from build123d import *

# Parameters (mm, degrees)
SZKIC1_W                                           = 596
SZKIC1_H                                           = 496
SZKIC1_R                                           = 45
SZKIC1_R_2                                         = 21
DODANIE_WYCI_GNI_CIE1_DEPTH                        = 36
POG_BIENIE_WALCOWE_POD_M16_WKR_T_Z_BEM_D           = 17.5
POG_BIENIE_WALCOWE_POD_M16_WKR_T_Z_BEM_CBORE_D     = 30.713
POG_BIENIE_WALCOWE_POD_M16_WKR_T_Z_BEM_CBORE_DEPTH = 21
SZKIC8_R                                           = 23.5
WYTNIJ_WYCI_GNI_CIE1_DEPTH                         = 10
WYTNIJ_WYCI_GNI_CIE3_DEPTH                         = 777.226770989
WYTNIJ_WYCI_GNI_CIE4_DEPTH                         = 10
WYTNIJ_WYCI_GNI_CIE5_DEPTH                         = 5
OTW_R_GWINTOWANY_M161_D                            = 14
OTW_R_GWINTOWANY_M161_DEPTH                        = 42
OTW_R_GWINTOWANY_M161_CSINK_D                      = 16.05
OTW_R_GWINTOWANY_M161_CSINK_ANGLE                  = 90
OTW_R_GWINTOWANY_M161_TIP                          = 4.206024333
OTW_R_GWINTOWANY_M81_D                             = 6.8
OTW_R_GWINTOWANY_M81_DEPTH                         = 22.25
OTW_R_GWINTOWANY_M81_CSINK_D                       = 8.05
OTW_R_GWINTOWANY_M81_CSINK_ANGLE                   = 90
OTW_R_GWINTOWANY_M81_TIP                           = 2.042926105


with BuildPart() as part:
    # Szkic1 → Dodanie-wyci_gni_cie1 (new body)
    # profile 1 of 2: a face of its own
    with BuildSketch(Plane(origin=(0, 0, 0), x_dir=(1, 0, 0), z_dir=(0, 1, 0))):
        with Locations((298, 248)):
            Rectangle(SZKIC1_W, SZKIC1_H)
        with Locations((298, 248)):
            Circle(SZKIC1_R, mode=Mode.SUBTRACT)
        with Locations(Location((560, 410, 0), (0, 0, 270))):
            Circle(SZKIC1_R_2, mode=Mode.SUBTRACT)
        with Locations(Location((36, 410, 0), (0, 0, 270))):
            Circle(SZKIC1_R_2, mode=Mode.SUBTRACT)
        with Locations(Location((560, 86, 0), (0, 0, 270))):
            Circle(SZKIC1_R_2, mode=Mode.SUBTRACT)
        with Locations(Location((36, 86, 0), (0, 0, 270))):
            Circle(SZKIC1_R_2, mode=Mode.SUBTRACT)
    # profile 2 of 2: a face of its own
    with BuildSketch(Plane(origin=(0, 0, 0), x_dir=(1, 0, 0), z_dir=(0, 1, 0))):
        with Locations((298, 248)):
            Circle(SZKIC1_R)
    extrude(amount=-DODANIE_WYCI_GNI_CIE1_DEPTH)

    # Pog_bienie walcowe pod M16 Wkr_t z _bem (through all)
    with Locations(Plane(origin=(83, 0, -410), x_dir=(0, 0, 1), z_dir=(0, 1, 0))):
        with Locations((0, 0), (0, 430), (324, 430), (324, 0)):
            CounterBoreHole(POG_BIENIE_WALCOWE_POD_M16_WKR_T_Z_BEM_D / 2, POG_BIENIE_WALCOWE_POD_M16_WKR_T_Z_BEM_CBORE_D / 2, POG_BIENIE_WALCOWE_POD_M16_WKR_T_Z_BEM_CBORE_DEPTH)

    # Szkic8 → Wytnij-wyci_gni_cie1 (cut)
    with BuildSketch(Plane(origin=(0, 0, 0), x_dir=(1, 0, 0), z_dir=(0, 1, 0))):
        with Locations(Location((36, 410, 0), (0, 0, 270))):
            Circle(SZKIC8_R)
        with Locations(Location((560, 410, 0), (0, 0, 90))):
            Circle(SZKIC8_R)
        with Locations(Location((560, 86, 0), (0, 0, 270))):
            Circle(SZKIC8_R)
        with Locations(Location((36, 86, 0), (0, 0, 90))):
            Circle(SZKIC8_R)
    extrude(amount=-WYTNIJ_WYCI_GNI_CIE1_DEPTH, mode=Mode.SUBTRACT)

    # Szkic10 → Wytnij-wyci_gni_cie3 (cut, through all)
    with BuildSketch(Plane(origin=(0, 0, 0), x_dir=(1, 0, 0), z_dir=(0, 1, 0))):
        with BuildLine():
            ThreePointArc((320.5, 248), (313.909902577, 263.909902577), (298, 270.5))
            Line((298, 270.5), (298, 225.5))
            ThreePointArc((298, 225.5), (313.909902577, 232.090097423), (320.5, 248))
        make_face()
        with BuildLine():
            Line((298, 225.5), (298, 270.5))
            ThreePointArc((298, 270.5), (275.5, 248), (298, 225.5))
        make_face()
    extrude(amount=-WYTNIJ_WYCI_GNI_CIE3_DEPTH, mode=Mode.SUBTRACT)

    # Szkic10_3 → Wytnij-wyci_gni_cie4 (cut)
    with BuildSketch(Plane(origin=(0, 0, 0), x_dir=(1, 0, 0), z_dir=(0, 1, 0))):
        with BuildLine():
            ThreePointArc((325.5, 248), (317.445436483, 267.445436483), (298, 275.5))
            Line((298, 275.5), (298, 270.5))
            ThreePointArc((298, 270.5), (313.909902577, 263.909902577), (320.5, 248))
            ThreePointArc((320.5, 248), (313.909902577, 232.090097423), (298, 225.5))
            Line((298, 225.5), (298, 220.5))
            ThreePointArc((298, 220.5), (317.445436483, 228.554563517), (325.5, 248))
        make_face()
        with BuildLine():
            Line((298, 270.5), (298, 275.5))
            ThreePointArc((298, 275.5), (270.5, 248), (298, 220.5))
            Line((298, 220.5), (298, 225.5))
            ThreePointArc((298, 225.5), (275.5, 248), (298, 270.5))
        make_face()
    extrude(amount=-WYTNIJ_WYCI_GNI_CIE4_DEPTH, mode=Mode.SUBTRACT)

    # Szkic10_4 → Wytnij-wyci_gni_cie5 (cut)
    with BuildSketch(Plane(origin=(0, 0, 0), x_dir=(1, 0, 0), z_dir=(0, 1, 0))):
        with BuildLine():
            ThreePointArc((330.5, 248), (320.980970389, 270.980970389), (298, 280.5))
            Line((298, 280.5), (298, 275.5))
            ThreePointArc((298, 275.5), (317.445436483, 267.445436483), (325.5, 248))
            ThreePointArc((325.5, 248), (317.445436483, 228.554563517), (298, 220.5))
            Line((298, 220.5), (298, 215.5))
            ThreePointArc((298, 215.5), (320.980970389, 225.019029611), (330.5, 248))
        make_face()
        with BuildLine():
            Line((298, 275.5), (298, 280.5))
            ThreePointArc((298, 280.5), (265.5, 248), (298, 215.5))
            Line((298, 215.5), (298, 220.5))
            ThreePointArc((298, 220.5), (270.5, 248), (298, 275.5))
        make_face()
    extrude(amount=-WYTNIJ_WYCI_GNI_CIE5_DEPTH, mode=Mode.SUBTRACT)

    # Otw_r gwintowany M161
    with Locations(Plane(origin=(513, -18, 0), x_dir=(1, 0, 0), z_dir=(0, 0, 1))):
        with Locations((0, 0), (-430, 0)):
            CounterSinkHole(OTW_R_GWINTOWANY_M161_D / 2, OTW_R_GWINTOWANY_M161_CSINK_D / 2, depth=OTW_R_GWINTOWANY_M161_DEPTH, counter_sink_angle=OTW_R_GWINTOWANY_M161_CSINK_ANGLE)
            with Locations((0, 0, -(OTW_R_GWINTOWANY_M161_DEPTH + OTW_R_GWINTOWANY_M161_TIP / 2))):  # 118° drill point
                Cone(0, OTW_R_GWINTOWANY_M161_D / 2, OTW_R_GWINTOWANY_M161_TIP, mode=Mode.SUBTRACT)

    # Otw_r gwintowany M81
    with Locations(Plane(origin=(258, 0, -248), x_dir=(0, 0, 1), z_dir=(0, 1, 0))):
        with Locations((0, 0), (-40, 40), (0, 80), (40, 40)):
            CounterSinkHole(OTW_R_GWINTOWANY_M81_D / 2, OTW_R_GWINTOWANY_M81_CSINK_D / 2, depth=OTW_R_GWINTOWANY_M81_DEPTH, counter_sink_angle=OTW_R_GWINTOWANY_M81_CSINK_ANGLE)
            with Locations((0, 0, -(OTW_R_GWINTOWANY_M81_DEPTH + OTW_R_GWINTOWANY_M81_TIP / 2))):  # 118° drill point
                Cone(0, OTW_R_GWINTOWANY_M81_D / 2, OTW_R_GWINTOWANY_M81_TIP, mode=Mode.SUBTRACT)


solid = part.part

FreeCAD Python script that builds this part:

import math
import FreeCAD as App
import Part
import Sketcher
from FreeCAD import Vector
Q = App.Units.Quantity


def add_polygon(sketch, points):
    """Adds a closed chain of lines whose ends are joined by coincident constraints."""
    first, n = sketch.GeometryCount, len(points)
    for a, b in zip(points, points[1:] + points[:1]):
        sketch.addGeometry(Part.LineSegment(App.Vector(*a, 0), App.Vector(*b, 0)), False)
    for i in range(n):
        sketch.addConstraint(Sketcher.Constraint("Coincident", first + i, 2, first + (i + 1) % n, 1))

doc = App.newDocument("Part")
params = doc.addObject("Spreadsheet::Sheet", "Params")
for row, (alias, value) in enumerate([
    ("sketch1_diameter", "42 mm"),
    ("sketch1_width", "596 mm"),
    ("sketch1_height", "496 mm"),
    ("pad1_length", "36 mm"),
    ("sketch2_diameter", "17.5 mm"),
    ("hole_diameter", "17.5 mm"),
    ("hole_cbore_diameter", "30.713 mm"),
    ("hole_cbore_depth", "21 mm"),
    ("sketch3_diameter", "47 mm"),
    ("pocket1_length", "10 mm"),
    ("sketch4_radius", "22.5 mm"),
    ("sketch5_radius", "27.5 mm"),
    ("sketch5_radius2", "22.5 mm"),
    ("pocket3_length", "10 mm"),
    ("sketch6_radius", "32.5 mm"),
    ("sketch6_radius2", "27.5 mm"),
    ("pocket4_length", "5 mm"),
    ("sketch7_diameter", "14 mm"),
    ("hole2_diameter", "14 mm"),
    ("hole2_depth", "42 mm"),
    ("hole2_csink_diameter", "16.05 mm"),
    ("sketch8_diameter", "6.8 mm"),
    ("hole3_diameter", "6.8 mm"),
    ("hole3_depth", "22.25 mm"),
    ("hole3_csink_diameter", "8.05 mm"),
], start=1):
    params.set(f"A{row}", alias)
    params.set(f"B{row}", "=" + value)
    params.setAlias(f"B{row}", alias)

body = doc.addObject("PartDesign::Body", "Body")

# Sketch on XZ plane
sketch1 = body.newObject("Sketcher::SketchObject", "Sketch")
sketch1.AttachmentSupport = (doc.getObject("XZ_Plane"), [""])
sketch1.MapMode = "FlatFace"
add_polygon(sketch1, [(0, -496), (0, 0), (596, 0), (596, -496)])  # lines 0-3
sketch1.addGeometry(Part.Circle(Vector(36, -86, 0), Vector(0, 0, 1), 21), False)  # 4
sketch1.addGeometry(Part.Circle(Vector(560, -86, 0), Vector(0, 0, 1), 21), False)  # 5
sketch1.addGeometry(Part.Circle(Vector(36, -410, 0), Vector(0, 0, 1), 21), False)  # 6
sketch1.addGeometry(Part.Circle(Vector(560, -410, 0), Vector(0, 0, 1), 21), False)  # 7
sketch1.addConstraint(Sketcher.Constraint("Vertical", 0))
sketch1.addConstraint(Sketcher.Constraint("Horizontal", 1))
sketch1.addConstraint(Sketcher.Constraint("Vertical", 2))
sketch1.addConstraint(Sketcher.Constraint("Horizontal", 3))
sketch1.addConstraint(Sketcher.Constraint("Coincident", 0, 2, -1, 1))
sketch1.addConstraint(Sketcher.Constraint("Equal", 4, 5))
sketch1.addConstraint(Sketcher.Constraint("Equal", 5, 6))
sketch1.addConstraint(Sketcher.Constraint("Equal", 6, 7))
sketch1.addConstraint(Sketcher.Constraint("Horizontal", 4, 3, 5, 3))
sketch1.addConstraint(Sketcher.Constraint("Horizontal", 6, 3, 7, 3))
sketch1.addConstraint(Sketcher.Constraint("Vertical", 4, 3, 6, 3))
sketch1.addConstraint(Sketcher.Constraint("Vertical", 5, 3, 7, 3))
sketch1.addConstraint(Sketcher.Constraint("Diameter", 4, Q("42 mm")))
sketch1.addConstraint(Sketcher.Constraint("DistanceX", 1, 1, 1, 2, Q("596 mm")))
sketch1.addConstraint(Sketcher.Constraint("DistanceY", 0, 1, 0, 2, Q("496 mm")))
sketch1.addConstraint(Sketcher.Constraint("DistanceX", -1, 1, 4, 3, Q("36 mm")))
sketch1.addConstraint(Sketcher.Constraint("DistanceY", 4, 3, -1, 1, Q("86 mm")))
sketch1.addConstraint(Sketcher.Constraint("DistanceX", -1, 1, 5, 3, Q("560 mm")))
sketch1.addConstraint(Sketcher.Constraint("DistanceY", 6, 3, -1, 1, Q("410 mm")))
sketch1.setExpression("Constraints[16]", "Params.sketch1_diameter")
sketch1.setExpression("Constraints[17]", "Params.sketch1_width")
sketch1.setExpression("Constraints[18]", "Params.sketch1_height")
pad1 = body.newObject("PartDesign::Pad", "Pad")
pad1.Profile = sketch1
pad1.setExpression("Length", "Params.pad1_length")

# Sketch on XZ plane
sketch2 = body.newObject("Sketcher::SketchObject", "Sketch001")
sketch2.AttachmentSupport = (doc.getObject("XZ_Plane"), [""])
sketch2.MapMode = "FlatFace"
sketch2.addGeometry(Part.Circle(Vector(83, -410, 0), Vector(0, 0, 1), 9), False)
sketch2.addGeometry(Part.Circle(Vector(513, -410, 0), Vector(0, 0, 1), 9), False)
sketch2.addGeometry(Part.Circle(Vector(513, -86, 0), Vector(0, 0, 1), 9), False)
sketch2.addGeometry(Part.Circle(Vector(83, -86, 0), Vector(0, 0, 1), 9), False)
sketch2.addConstraint(Sketcher.Constraint("Equal", 0, 1))
sketch2.addConstraint(Sketcher.Constraint("Equal", 1, 2))
sketch2.addConstraint(Sketcher.Constraint("Equal", 2, 3))
sketch2.addConstraint(Sketcher.Constraint("Horizontal", 0, 3, 1, 3))
sketch2.addConstraint(Sketcher.Constraint("Horizontal", 2, 3, 3, 3))
sketch2.addConstraint(Sketcher.Constraint("Vertical", 1, 3, 2, 3))
sketch2.addConstraint(Sketcher.Constraint("Vertical", 0, 3, 3, 3))
sketch2.addConstraint(Sketcher.Constraint("Diameter", 0, Q("17.5 mm")))
sketch2.addConstraint(Sketcher.Constraint("DistanceX", -1, 1, 0, 3, Q("83 mm")))
sketch2.addConstraint(Sketcher.Constraint("DistanceY", 0, 3, -1, 1, Q("410 mm")))
sketch2.addConstraint(Sketcher.Constraint("DistanceX", -1, 1, 1, 3, Q("513 mm")))
sketch2.addConstraint(Sketcher.Constraint("DistanceY", 2, 3, -1, 1, Q("86 mm")))
sketch2.setExpression("Constraints[7]", "Params.sketch2_diameter")
doc.recompute()
hole = body.newObject("PartDesign::Hole", "Hole")
hole.Profile = sketch2
hole.ThreadType = "None"
hole.setExpression("Diameter", "Params.hole_diameter")
hole.DepthType = "ThroughAll"
hole.HoleCutType = "Counterbore"
hole.setExpression("HoleCutDiameter", "Params.hole_cbore_diameter")
hole.setExpression("HoleCutDepth", "Params.hole_cbore_depth")
hole.Reversed = True

# Sketch on XZ plane
sketch3 = body.newObject("Sketcher::SketchObject", "Sketch002")
sketch3.AttachmentSupport = (doc.getObject("XZ_Plane"), [""])
sketch3.MapMode = "FlatFace"
sketch3.addGeometry(Part.Circle(Vector(36, -410, 0), Vector(0, 0, 1), 24), False)
sketch3.addGeometry(Part.Circle(Vector(560, -410, 0), Vector(0, 0, 1), 24), False)
sketch3.addGeometry(Part.Circle(Vector(560, -86, 0), Vector(0, 0, 1), 24), False)
sketch3.addGeometry(Part.Circle(Vector(36, -86, 0), Vector(0, 0, 1), 24), False)
sketch3.addConstraint(Sketcher.Constraint("Equal", 0, 1))
sketch3.addConstraint(Sketcher.Constraint("Equal", 1, 2))
sketch3.addConstraint(Sketcher.Constraint("Equal", 2, 3))
sketch3.addConstraint(Sketcher.Constraint("Horizontal", 0, 3, 1, 3))
sketch3.addConstraint(Sketcher.Constraint("Horizontal", 2, 3, 3, 3))
sketch3.addConstraint(Sketcher.Constraint("Vertical", 1, 3, 2, 3))
sketch3.addConstraint(Sketcher.Constraint("Vertical", 0, 3, 3, 3))
sketch3.addConstraint(Sketcher.Constraint("Diameter", 0, Q("47 mm")))
sketch3.addConstraint(Sketcher.Constraint("DistanceX", -1, 1, 0, 3, Q("36 mm")))
sketch3.addConstraint(Sketcher.Constraint("DistanceY", 0, 3, -1, 1, Q("410 mm")))
sketch3.addConstraint(Sketcher.Constraint("DistanceX", -1, 1, 1, 3, Q("560 mm")))
sketch3.addConstraint(Sketcher.Constraint("DistanceY", 2, 3, -1, 1, Q("86 mm")))
sketch3.setExpression("Constraints[7]", "Params.sketch3_diameter")
pocket1 = body.newObject("PartDesign::Pocket", "Pocket")
pocket1.Profile = sketch3
pocket1.setExpression("Length", "Params.pocket1_length")
pocket1.Reversed = True

# Sketch on XZ plane
sketch4 = body.newObject("Sketcher::SketchObject", "Sketch003")
sketch4.AttachmentSupport = (doc.getObject("XZ_Plane"), [""])
sketch4.MapMode = "FlatFace"
sketch4.addGeometry(Part.ArcOfCircle(Part.Circle(Vector(298, -248, 0), Vector(0, 0, 1), 22), math.radians(-90), math.radians(0)), False)
sketch4.addGeometry(Part.ArcOfCircle(Part.Circle(Vector(298, -248, 0), Vector(0, 0, 1), 22), math.radians(90), math.radians(270)), False)
sketch4.addGeometry(Part.ArcOfCircle(Part.Circle(Vector(298, -248, 0), Vector(0, 0, 1), 22), math.radians(0), math.radians(90)), False)
sketch4.addConstraint(Sketcher.Constraint("Tangent", 0, 1, 1, 2))
sketch4.addConstraint(Sketcher.Constraint("Tangent", 1, 1, 2, 2))
sketch4.addConstraint(Sketcher.Constraint("Tangent", 2, 1, 0, 2))
sketch4.addConstraint(Sketcher.Constraint("Horizontal", 1, 3, 2, 1))
sketch4.addConstraint(Sketcher.Constraint("Vertical", 2, 3, 0, 1))
sketch4.addConstraint(Sketcher.Constraint("Vertical", 0, 1, 1, 1))
sketch4.addConstraint(Sketcher.Constraint("Radius", 0, Q("22.5 mm")))
sketch4.addConstraint(Sketcher.Constraint("DistanceX", -1, 1, 0, 3, Q("298 mm")))
sketch4.addConstraint(Sketcher.Constraint("DistanceY", 0, 3, -1, 1, Q("248 mm")))
sketch4.setExpression("Constraints[6]", "Params.sketch4_radius")
pocket2 = body.newObject("PartDesign::Pocket", "Pocket001")
pocket2.Profile = sketch4
pocket2.Type = "ThroughAll"
pocket2.Reversed = True

# Sketch on XZ plane
sketch5 = body.newObject("Sketcher::SketchObject", "Sketch004")
sketch5.AttachmentSupport = (doc.getObject("XZ_Plane"), [""])
sketch5.MapMode = "FlatFace"
sketch5.addGeometry(Part.ArcOfCircle(Part.Circle(Vector(298, -248, 0), Vector(0, 0, 1), 27), math.radians(-90), math.radians(0)), False)
sketch5.addGeometry(Part.ArcOfCircle(Part.Circle(Vector(298, -248, 0), Vector(0, 0, 1), 28), math.radians(90), math.radians(270)), False)
sketch5.addGeometry(Part.ArcOfCircle(Part.Circle(Vector(298, -248, 0), Vector(0, 0, 1), 27), math.radians(0), math.radians(90)), False)
sketch5.addGeometry(Part.ArcOfCircle(Part.Circle(Vector(298, -248, 0), Vector(0, 0, 1), 22), math.radians(0), math.radians(90)), False)
sketch5.addGeometry(Part.ArcOfCircle(Part.Circle(Vector(298, -248, 0), Vector(0, 0, 1), 22), math.radians(90), math.radians(270)), False)
sketch5.addGeometry(Part.ArcOfCircle(Part.Circle(Vector(298, -248, 0), Vector(0, 0, 1), 22), math.radians(-90), math.radians(0)), False)
sketch5.addConstraint(Sketcher.Constraint("Tangent", 0, 1, 1, 2))
sketch5.addConstraint(Sketcher.Constraint("Tangent", 1, 1, 2, 2))
sketch5.addConstraint(Sketcher.Constraint("Tangent", 2, 1, 0, 2))
sketch5.addConstraint(Sketcher.Constraint("Tangent", 3, 2, 4, 1))
sketch5.addConstraint(Sketcher.Constraint("Tangent", 4, 2, 5, 1))
sketch5.addConstraint(Sketcher.Constraint("Tangent", 5, 2, 3, 1))
sketch5.addConstraint(Sketcher.Constraint("Coincident", 3, 3, 0, 3))
sketch5.addConstraint(Sketcher.Constraint("Horizontal", 5, 3, 2, 1))
sketch5.addConstraint(Sketcher.Constraint("Horizontal", 2, 1, 5, 2))
sketch5.addConstraint(Sketcher.Constraint("Vertical", 5, 3, 0, 1))
sketch5.addConstraint(Sketcher.Constraint("Vertical", 0, 1, 1, 1))
sketch5.addConstraint(Sketcher.Constraint("Vertical", 1, 1, 3, 2))
sketch5.addConstraint(Sketcher.Constraint("Vertical", 3, 2, 4, 2))
sketch5.addConstraint(Sketcher.Constraint("Radius", 0, Q("27.5 mm")))
sketch5.addConstraint(Sketcher.Constraint("Radius", 3, Q("22.5 mm")))
sketch5.addConstraint(Sketcher.Constraint("DistanceX", -1, 1, 0, 3, Q("298 mm")))
sketch5.addConstraint(Sketcher.Constraint("DistanceY", 0, 3, -1, 1, Q("248 mm")))
sketch5.setExpression("Constraints[13]", "Params.sketch5_radius")
sketch5.setExpression("Constraints[14]", "Params.sketch5_radius2")
pocket3 = body.newObject("PartDesign::Pocket", "Pocket002")
pocket3.Profile = sketch5
pocket3.setExpression("Length", "Params.pocket3_length")
pocket3.Reversed = True

# Sketch on XZ plane
sketch6 = body.newObject("Sketcher::SketchObject", "Sketch005")
sketch6.AttachmentSupport = (doc.getObject("XZ_Plane"), [""])
sketch6.MapMode = "FlatFace"
sketch6.addGeometry(Part.ArcOfCircle(Part.Circle(Vector(298, -248, 0), Vector(0, 0, 1), 32), math.radians(-90), math.radians(0)), False)
sketch6.addGeometry(Part.ArcOfCircle(Part.Circle(Vector(298, -248, 0), Vector(0, 0, 1), 32), math.radians(90), math.radians(270)), False)
sketch6.addGeometry(Part.ArcOfCircle(Part.Circle(Vector(298, -248, 0), Vector(0, 0, 1), 32), math.radians(0), math.radians(90)), False)
sketch6.addGeometry(Part.ArcOfCircle(Part.Circle(Vector(298, -248, 0), Vector(0, 0, 1), 27), math.radians(0), math.radians(90)), False)
sketch6.addGeometry(Part.ArcOfCircle(Part.Circle(Vector(298, -248, 0), Vector(0, 0, 1), 28), math.radians(90), math.radians(270)), False)
sketch6.addGeometry(Part.ArcOfCircle(Part.Circle(Vector(298, -248, 0), Vector(0, 0, 1), 27), math.radians(-90), math.radians(0)), False)
sketch6.addConstraint(Sketcher.Constraint("Tangent", 0, 1, 1, 2))
sketch6.addConstraint(Sketcher.Constraint("Tangent", 1, 1, 2, 2))
sketch6.addConstraint(Sketcher.Constraint("Tangent", 2, 1, 0, 2))
sketch6.addConstraint(Sketcher.Constraint("Tangent", 3, 2, 4, 1))
sketch6.addConstraint(Sketcher.Constraint("Tangent", 4, 2, 5, 1))
sketch6.addConstraint(Sketcher.Constraint("Tangent", 5, 2, 3, 1))
sketch6.addConstraint(Sketcher.Constraint("Coincident", 3, 3, 0, 3))
sketch6.addConstraint(Sketcher.Constraint("Horizontal", 5, 3, 2, 1))
sketch6.addConstraint(Sketcher.Constraint("Horizontal", 2, 1, 5, 2))
sketch6.addConstraint(Sketcher.Constraint("Vertical", 5, 3, 0, 1))
sketch6.addConstraint(Sketcher.Constraint("Vertical", 0, 1, 1, 1))
sketch6.addConstraint(Sketcher.Constraint("Vertical", 1, 1, 3, 2))
sketch6.addConstraint(Sketcher.Constraint("Vertical", 3, 2, 4, 2))
sketch6.addConstraint(Sketcher.Constraint("Radius", 0, Q("32.5 mm")))
sketch6.addConstraint(Sketcher.Constraint("Radius", 3, Q("27.5 mm")))
sketch6.addConstraint(Sketcher.Constraint("DistanceX", -1, 1, 0, 3, Q("298 mm")))
sketch6.addConstraint(Sketcher.Constraint("DistanceY", 0, 3, -1, 1, Q("248 mm")))
sketch6.setExpression("Constraints[13]", "Params.sketch6_radius")
sketch6.setExpression("Constraints[14]", "Params.sketch6_radius2")
pocket4 = body.newObject("PartDesign::Pocket", "Pocket003")
pocket4.Profile = sketch6
pocket4.setExpression("Length", "Params.pocket4_length")
pocket4.Reversed = True

# Sketch on XY plane
sketch7 = body.newObject("Sketcher::SketchObject", "Sketch006")
sketch7.AttachmentSupport = (doc.getObject("XY_Plane"), [""])
sketch7.MapMode = "FlatFace"
sketch7.addGeometry(Part.Circle(Vector(513, -18, 0), Vector(0, 0, 1), 7), False)
sketch7.addGeometry(Part.Circle(Vector(83, -18, 0), Vector(0, 0, 1), 7), False)
sketch7.addConstraint(Sketcher.Constraint("Equal", 0, 1))
sketch7.addConstraint(Sketcher.Constraint("Horizontal", 0, 3, 1, 3))
sketch7.addConstraint(Sketcher.Constraint("Diameter", 0, Q("14 mm")))
sketch7.addConstraint(Sketcher.Constraint("DistanceX", -1, 1, 0, 3, Q("513 mm")))
sketch7.addConstraint(Sketcher.Constraint("DistanceY", 0, 3, -1, 1, Q("18 mm")))
sketch7.addConstraint(Sketcher.Constraint("DistanceX", -1, 1, 1, 3, Q("83 mm")))
sketch7.setExpression("Constraints[2]", "Params.sketch7_diameter")
doc.recompute()
hole2 = body.newObject("PartDesign::Hole", "Hole001")
hole2.Profile = sketch7
hole2.ThreadType = "None"
hole2.setExpression("Diameter", "Params.hole2_diameter")
hole2.DepthType = "Dimension"
hole2.setExpression("Depth", "Params.hole2_depth")
hole2.DrillPoint = "Angled"
hole2.DrillPointAngle = 118
hole2.HoleCutType = "Countersink"
hole2.setExpression("HoleCutDiameter", "Params.hole2_csink_diameter")
hole2.HoleCutCountersinkAngle = 90

# Sketch on XZ plane
sketch8 = body.newObject("Sketcher::SketchObject", "Sketch007")
sketch8.AttachmentSupport = (doc.getObject("XZ_Plane"), [""])
sketch8.MapMode = "FlatFace"
sketch8.addGeometry(Part.Circle(Vector(258, -248, 0), Vector(0, 0, 1), 3.4), False)
sketch8.addGeometry(Part.Circle(Vector(298, -288, 0), Vector(0, 0, 1), 3.4), False)
sketch8.addGeometry(Part.Circle(Vector(338, -248, 0), Vector(0, 0, 1), 3.4), False)
sketch8.addGeometry(Part.Circle(Vector(298, -208, 0), Vector(0, 0, 1), 3.4), False)
sketch8.addConstraint(Sketcher.Constraint("Equal", 0, 1))
sketch8.addConstraint(Sketcher.Constraint("Equal", 1, 2))
sketch8.addConstraint(Sketcher.Constraint("Equal", 2, 3))
sketch8.addConstraint(Sketcher.Constraint("Horizontal", 0, 3, 2, 3))
sketch8.addConstraint(Sketcher.Constraint("Vertical", 1, 3, 3, 3))
sketch8.addConstraint(Sketcher.Constraint("Diameter", 0, Q("6.8 mm")))
sketch8.addConstraint(Sketcher.Constraint("DistanceX", -1, 1, 0, 3, Q("258 mm")))
sketch8.addConstraint(Sketcher.Constraint("DistanceY", 0, 3, -1, 1, Q("248 mm")))
sketch8.addConstraint(Sketcher.Constraint("DistanceX", -1, 1, 1, 3, Q("298 mm")))
sketch8.addConstraint(Sketcher.Constraint("DistanceY", 1, 3, -1, 1, Q("288 mm")))
sketch8.addConstraint(Sketcher.Constraint("DistanceX", -1, 1, 2, 3, Q("338 mm")))
sketch8.addConstraint(Sketcher.Constraint("DistanceY", 3, 3, -1, 1, Q("208 mm")))
sketch8.setExpression("Constraints[5]", "Params.sketch8_diameter")
doc.recompute()
hole3 = body.newObject("PartDesign::Hole", "Hole002")
hole3.Profile = sketch8
hole3.ThreadType = "None"
hole3.setExpression("Diameter", "Params.hole3_diameter")
hole3.DepthType = "Dimension"
hole3.setExpression("Depth", "Params.hole3_depth")
hole3.DrillPoint = "Angled"
hole3.DrillPointAngle = 118
hole3.HoleCutType = "Countersink"
hole3.setExpression("HoleCutDiameter", "Params.hole3_csink_diameter")
hole3.HoleCutCountersinkAngle = 90
hole3.Reversed = True

doc.recompute()
